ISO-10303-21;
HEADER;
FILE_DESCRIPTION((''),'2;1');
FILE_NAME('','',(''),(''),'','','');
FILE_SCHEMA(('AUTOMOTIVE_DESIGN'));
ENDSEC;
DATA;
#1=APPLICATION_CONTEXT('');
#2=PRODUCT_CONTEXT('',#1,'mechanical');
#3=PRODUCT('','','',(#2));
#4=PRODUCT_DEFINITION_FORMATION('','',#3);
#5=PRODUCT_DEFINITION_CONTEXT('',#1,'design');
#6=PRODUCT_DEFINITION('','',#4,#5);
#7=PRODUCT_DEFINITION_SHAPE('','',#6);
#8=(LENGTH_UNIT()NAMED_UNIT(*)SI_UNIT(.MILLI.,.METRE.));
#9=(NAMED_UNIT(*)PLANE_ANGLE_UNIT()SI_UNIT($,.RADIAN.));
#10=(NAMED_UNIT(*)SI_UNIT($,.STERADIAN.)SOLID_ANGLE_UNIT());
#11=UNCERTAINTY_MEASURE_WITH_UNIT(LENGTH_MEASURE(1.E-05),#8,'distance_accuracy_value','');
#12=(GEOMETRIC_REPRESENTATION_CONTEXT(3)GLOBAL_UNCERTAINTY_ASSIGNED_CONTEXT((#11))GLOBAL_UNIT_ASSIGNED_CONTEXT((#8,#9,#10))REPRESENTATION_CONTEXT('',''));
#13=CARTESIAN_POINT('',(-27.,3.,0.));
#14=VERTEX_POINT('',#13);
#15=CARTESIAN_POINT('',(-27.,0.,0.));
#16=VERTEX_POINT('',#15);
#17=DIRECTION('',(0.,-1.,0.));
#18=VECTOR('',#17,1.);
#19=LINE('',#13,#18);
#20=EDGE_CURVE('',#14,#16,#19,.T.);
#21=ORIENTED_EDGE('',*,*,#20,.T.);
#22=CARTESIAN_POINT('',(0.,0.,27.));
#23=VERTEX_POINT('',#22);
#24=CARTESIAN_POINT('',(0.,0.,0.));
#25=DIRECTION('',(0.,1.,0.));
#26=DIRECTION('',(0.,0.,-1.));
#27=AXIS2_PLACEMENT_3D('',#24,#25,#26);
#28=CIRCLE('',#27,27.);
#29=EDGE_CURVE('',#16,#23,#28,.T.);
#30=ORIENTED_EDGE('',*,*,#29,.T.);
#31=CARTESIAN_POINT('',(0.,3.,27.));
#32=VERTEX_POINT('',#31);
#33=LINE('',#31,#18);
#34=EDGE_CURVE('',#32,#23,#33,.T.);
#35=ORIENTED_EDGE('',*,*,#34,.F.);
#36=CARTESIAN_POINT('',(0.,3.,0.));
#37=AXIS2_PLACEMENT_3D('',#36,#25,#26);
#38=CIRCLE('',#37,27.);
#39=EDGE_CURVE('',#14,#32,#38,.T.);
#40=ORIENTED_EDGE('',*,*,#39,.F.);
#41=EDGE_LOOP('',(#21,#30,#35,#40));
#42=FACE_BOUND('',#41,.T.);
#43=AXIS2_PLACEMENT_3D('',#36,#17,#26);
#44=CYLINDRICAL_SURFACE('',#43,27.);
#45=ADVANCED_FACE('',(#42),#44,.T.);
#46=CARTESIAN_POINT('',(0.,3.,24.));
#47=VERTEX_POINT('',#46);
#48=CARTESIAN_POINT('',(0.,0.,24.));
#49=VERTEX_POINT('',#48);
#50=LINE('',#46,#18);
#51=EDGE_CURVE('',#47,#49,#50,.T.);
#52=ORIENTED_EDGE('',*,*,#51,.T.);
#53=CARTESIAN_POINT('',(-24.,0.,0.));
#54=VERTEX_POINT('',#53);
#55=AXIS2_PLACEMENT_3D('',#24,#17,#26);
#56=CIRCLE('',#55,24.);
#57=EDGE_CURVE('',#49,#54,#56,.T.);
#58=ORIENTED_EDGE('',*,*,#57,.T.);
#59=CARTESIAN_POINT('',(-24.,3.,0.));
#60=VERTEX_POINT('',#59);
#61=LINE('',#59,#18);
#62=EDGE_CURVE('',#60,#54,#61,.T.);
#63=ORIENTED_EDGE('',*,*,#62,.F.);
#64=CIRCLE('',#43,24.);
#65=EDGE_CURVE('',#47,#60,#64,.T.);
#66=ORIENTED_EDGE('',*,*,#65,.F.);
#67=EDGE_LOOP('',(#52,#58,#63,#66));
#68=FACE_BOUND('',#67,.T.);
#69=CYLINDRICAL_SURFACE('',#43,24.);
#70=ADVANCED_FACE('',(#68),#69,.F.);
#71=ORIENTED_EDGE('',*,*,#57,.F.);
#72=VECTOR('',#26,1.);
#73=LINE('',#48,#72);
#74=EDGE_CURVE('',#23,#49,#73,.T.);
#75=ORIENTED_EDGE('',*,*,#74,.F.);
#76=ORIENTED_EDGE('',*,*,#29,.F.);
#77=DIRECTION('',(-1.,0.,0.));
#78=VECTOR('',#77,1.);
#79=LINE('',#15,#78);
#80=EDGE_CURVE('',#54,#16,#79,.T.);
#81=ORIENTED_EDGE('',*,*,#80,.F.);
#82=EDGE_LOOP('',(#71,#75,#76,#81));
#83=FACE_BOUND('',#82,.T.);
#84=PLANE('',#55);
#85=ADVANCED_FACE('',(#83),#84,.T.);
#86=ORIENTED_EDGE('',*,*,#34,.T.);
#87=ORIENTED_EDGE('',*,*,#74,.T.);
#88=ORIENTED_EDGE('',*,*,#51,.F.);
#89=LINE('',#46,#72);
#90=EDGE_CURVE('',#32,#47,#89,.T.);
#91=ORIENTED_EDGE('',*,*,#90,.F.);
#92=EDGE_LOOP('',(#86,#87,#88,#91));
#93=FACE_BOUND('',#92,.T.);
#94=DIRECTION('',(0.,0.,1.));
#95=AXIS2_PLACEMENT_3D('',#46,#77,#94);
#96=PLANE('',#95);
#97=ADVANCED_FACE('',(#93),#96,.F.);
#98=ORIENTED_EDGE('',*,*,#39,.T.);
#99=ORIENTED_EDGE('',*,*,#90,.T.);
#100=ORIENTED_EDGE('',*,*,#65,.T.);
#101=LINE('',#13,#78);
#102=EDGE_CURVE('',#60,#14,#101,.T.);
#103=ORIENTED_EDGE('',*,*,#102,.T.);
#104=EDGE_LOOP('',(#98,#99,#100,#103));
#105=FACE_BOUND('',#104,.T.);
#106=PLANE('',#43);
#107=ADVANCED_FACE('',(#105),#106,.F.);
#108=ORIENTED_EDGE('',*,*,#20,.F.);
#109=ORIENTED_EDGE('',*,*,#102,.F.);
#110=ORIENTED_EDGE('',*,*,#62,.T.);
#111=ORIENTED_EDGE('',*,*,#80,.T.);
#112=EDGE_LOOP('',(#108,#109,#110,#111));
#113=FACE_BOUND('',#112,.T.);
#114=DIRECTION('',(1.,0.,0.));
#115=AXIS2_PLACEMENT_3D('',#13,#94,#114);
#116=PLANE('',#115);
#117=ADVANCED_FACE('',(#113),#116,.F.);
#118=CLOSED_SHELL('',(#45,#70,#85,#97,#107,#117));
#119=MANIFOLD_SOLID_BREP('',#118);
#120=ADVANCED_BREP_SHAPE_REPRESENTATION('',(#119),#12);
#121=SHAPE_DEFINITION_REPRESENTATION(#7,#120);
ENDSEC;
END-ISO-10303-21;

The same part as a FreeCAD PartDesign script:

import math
import FreeCAD as App
import Part
import Sketcher
from FreeCAD import Vector

doc = App.newDocument("Part")
params = doc.addObject("Spreadsheet::Sheet", "Params")
for row, (alias, value) in enumerate([
    ("sketch1_radius", "27 mm"),
    ("sketch1_radius2", "24 mm"),
    ("pad1_length", "3 mm"),
], start=1):
    params.set(f"A{row}", alias)
    params.set(f"B{row}", "=" + value)
    params.setAlias(f"B{row}", alias)

body = doc.addObject("PartDesign::Body", "Body")

# Sketch on XZ plane
sketch1 = doc.addObject("Sketcher::SketchObject", "Sketch")
body.addObject(sketch1)
sketch1.AttachmentSupport = (doc.XZ_Plane, [""])
sketch1.MapMode = "FlatFace"
sketch1.addGeometry([
    Part.LineSegment(Vector(-24, 0, 0), Vector(-27, 0, 0)),
    Part.ArcOfCircle(Part.Circle(Vector(0, 0, 0), Vector(0, 0, 1), 27), math.radians(90), math.radians(180)),
    Part.LineSegment(Vector(0, 27, 0), Vector(0, 24, 0)),
    Part.ArcOfCircle(Part.Circle(Vector(0, 0, 0), Vector(0, 0, 1), 24), math.radians(90), math.radians(180)),
], False)
sketch1.addConstraint([
    Sketcher.Constraint("Coincident", 0, 2, 1, 2),
    Sketcher.Constraint("Coincident", 1, 1, 2, 1),
    Sketcher.Constraint("Coincident", 2, 2, 3, 1),
    Sketcher.Constraint("Coincident", 3, 2, 0, 1),
    Sketcher.Constraint("Horizontal", 0),
    Sketcher.Constraint("Vertical", 2),
    Sketcher.Constraint("Coincident", 1, 3, -1, 1),
    Sketcher.Constraint("Coincident", 3, 3, -1, 1),
    Sketcher.Constraint("PointOnObject", 0, 2, -1),
    Sketcher.Constraint("PointOnObject", 1, 1, -2),
    Sketcher.Constraint("Radius", 1, 27.0),
    Sketcher.Constraint("Radius", 3, 24.0),
])
sketch1.setExpression("Constraints[10]", "Params.sketch1_radius")
sketch1.setExpression("Constraints[11]", "Params.sketch1_radius2")
pad1 = doc.addObject("PartDesign::Pad", "Pad")
body.addObject(pad1)
pad1.Profile = sketch1
pad1.setExpression("Length", "Params.pad1_length")
pad1.Reversed = True

doc.recompute()
